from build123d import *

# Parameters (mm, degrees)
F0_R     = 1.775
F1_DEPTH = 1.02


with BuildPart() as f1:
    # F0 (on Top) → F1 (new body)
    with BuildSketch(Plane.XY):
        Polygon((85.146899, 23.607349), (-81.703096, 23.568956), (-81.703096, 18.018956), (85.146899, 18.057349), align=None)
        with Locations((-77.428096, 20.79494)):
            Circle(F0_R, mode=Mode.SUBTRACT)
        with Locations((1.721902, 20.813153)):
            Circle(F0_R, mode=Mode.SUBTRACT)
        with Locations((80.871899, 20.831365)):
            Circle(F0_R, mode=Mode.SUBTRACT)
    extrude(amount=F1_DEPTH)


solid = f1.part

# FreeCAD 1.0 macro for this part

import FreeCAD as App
import Part
import Sketcher
from FreeCAD import Vector

doc = App.newDocument("Part")
body = doc.addObject("PartDesign::Body", "Body")

# Sketch on XY plane
sketch1 = doc.addObject("Sketcher::SketchObject", "Sketch")
body.addObject(sketch1)
sketch1.AttachmentSupport = (doc.XY_Plane, [""])
sketch1.MapMode = "FlatFace"
sketch1.addGeometry(Part.LineSegment(Vector(85.1, 23.6, 0), Vector(-81.7, 23.6, 0)), False)
sketch1.addGeometry(Part.LineSegment(Vector(-81.7, 23.6, 0), Vector(-81.7, 18, 0)), False)
sketch1.addGeometry(Part.LineSegment(Vector(-81.7, 18, 0), Vector(85.1, 18.1, 0)), False)
sketch1.addGeometry(Part.LineSegment(Vector(85.1, 18.1, 0), Vector(85.1, 23.6, 0)), False)
sketch1.addGeometry(Part.Circle(Vector(-77.4, 20.8, 0), Vector(0, 0, 1), 1.8), False)
sketch1.addGeometry(Part.Circle(Vector(1.7, 20.8, 0), Vector(0, 0, 1), 1.8), False)
sketch1.addGeometry(Part.Circle(Vector(80.9, 20.8, 0), Vector(0, 0, 1), 1.8), False)
sketch1.addConstraint(Sketcher.Constraint("Coincident", 0, 2, 1, 1))
sketch1.addConstraint(Sketcher.Constraint("Coincident", 1, 2, 2, 1))
sketch1.addConstraint(Sketcher.Constraint("Coincident", 2, 2, 3, 1))
sketch1.addConstraint(Sketcher.Constraint("Coincident", 3, 2, 0, 1))
sketch1.addConstraint(Sketcher.Constraint("Vertical", 1))
sketch1.addConstraint(Sketcher.Constraint("Vertical", 3))
sketch1.addConstraint(Sketcher.Constraint("Equal", 4, 5))
sketch1.addConstraint(Sketcher.Constraint("Equal", 5, 6))
sketch1.addConstraint(Sketcher.Constraint("Parallel", 0, 2))
sketch1.addConstraint(Sketcher.Constraint("Diameter", 4, 3.55))
sketch1.addConstraint(Sketcher.Constraint("DistanceY", 1, 2, 1, 1, 5.55))
sketch1.addConstraint(Sketcher.Constraint("Distance", 0, 166.849999))
sketch1.addConstraint(Sketcher.Constraint("DistanceX", 0, 2, 4, 3, 4.275))
sketch1.addConstraint(Sketcher.Constraint("DistanceX", 0, 2, 5, 3, 83.424998))
sketch1.addConstraint(Sketcher.Constraint("DistanceX", 6, 3, 2, 2, 4.275))
sketch1.addConstraint(Sketcher.Constraint("DistanceX", -1, 1, 6, 3, 80.871899))
sketch1.addConstraint(Sketcher.Constraint("DistanceY", -1, 1, 4, 3, 20.79494))
sketch1.addConstraint(Sketcher.Constraint("DistanceY", -1, 1, 2, 2, 18.057349))
sketch1.addConstraint(Sketcher.Constraint("DistanceY", 6, 3, 0, 2, 2.737591))
sketch1.addConstraint(Sketcher.Constraint("DistanceY", -1, 1, 5, 3, 20.813153))
sketch1.addConstraint(Sketcher.Constraint("DistanceY", -1, 1, 6, 3, 20.831365))
pad1 = doc.addObject("PartDesign::Pad", "Pad")
body.addObject(pad1)
pad1.Profile = sketch1
pad1.Length = 1.02

doc.recompute()
